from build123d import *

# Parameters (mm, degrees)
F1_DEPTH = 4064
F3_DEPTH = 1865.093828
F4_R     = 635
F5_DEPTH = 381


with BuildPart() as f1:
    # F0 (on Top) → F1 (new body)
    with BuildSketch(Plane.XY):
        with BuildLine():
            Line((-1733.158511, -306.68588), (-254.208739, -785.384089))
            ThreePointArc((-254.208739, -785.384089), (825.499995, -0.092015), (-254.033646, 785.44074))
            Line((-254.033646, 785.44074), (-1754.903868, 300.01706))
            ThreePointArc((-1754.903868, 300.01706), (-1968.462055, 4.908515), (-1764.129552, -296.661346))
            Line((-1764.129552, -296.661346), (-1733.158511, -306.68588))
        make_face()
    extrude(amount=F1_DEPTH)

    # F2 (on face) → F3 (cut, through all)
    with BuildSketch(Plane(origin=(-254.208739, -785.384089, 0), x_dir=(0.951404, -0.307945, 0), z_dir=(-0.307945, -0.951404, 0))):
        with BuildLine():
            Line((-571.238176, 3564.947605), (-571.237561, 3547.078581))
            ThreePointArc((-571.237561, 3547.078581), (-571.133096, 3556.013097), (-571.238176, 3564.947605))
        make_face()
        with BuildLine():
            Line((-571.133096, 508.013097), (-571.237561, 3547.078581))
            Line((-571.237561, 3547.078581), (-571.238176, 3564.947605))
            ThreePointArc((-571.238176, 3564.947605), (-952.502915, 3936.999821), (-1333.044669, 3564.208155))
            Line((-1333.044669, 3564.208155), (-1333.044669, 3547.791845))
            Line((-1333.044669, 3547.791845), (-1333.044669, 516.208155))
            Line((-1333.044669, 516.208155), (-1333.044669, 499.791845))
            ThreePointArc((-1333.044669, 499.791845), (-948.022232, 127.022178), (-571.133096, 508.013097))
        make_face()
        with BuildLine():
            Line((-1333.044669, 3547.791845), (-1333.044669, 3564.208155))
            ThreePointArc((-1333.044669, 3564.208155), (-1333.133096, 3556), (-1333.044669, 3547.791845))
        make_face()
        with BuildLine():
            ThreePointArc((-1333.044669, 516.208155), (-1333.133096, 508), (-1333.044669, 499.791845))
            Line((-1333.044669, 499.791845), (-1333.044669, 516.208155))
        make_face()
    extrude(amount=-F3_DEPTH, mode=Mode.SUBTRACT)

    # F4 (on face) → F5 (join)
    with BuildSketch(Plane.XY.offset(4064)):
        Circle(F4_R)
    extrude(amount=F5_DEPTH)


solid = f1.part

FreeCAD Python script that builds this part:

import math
import FreeCAD as App
import Part
import Sketcher

V = App.Vector
Q = App.Units.Quantity

doc = App.newDocument("Part")
body = doc.addObject("PartDesign::Body", "Body")

# Sketch on XY plane
sketch1 = doc.addObject("Sketcher::SketchObject", "Sketch")
body.addObject(sketch1)
sketch1.AttachmentSupport = (doc.XY_Plane, [""])
sketch1.MapMode = "FlatFace"
sketch1.addGeometry([
    Part.LineSegment(V(-1733, -307, 0), V(-254, -785, 0)),  # 0
    Part.ArcOfCircle(Part.Circle(V(0, 0, 0), V(0, 0, 1), 825), math.radians(-108), math.radians(108)),  # 1
    Part.LineSegment(V(-254, 785, 0), V(-1755, 300, 0)),  # 2
    Part.ArcOfCircle(Part.Circle(V(-1651, 0, 0), V(0, 0, 1), 317), math.radians(109), math.radians(249)),  # 3
    Part.LineSegment(V(-1764, -297, 0), V(-1733, -307, 0)),  # 4
], False)
sketch1.addConstraint([
    Sketcher.Constraint("Coincident", 0, 2, 1, 1),
    Sketcher.Constraint("Coincident", 1, 2, 2, 1),
    Sketcher.Constraint("Coincident", 2, 2, 3, 1),
    Sketcher.Constraint("Coincident", 3, 2, 4, 1),
    Sketcher.Constraint("Coincident", 4, 2, 0, 1),
    Sketcher.Constraint("Coincident", 1, 3, -1, 1),
    Sketcher.Constraint("PointOnObject", 3, 3, -1),
    Sketcher.Constraint("Parallel", 0, 4),
    Sketcher.Constraint("Radius", 1, Q("32.5 in")),
    Sketcher.Constraint("Radius", 3, Q("12.5 in")),
    Sketcher.Constraint("DistanceX", 3, 3, -1, 1, Q("65 in")),
    Sketcher.Constraint("Distance", 2, 1577.418008),
    Sketcher.Constraint("DistanceX", 0, 2, -1, 1, 254.208739),
    Sketcher.Constraint("DistanceX", 2, 2, -1, 1, 1754.903868),
    Sketcher.Constraint("DistanceX", 3, 2, -1, 1, 1764.129552),
    Sketcher.Constraint("DistanceX", 4, 2, -1, 1, 1733.158511),
])
pad1 = doc.addObject("PartDesign::Pad", "Pad")
body.addObject(pad1)
pad1.Profile = sketch1
pad1.Length = Q("160 in")

# Sketch on an angled plane
sketch2 = doc.addObject("Sketcher::SketchObject", "Sketch001")
body.addObject(sketch2)
sketch2.Placement = App.Placement(V(-254.208739, -785.384089, 0), App.Rotation(V(0.951404145, -0.307945047, 0), V(0, 0, 0.999999999), V(-0.307945047, -0.951404145, 0), "ZXY"))
sketch2.addGeometry([
    Part.ArcOfCircle(Part.Circle(V(-952.132317, 3555.999977, 0), V(0, 0, 1), 380.999222), math.radians(-1.341749), math.radians(1.345693)),  # 0
    Part.ArcOfCircle(Part.Circle(V(-952.133095, 3555.999994, 0), V(0, 0, 1), 381), math.radians(1.345688), math.radians(178.765541)),  # 1
    Part.ArcOfCircle(Part.Circle(V(-952.13166, 3555.999994, 0), V(0, 0, 1), 381.001435), math.radians(178.765545), math.radians(181.234455)),  # 2
    Part.LineSegment(V(-1333.044668, 3547.791839, 0), V(-1333.044668, 516.208154, 0)),  # 3
    Part.ArcOfCircle(Part.Circle(V(-952.13166, 507.999999, 0), V(0, 0, 1), 381.001435), math.radians(178.765545), math.radians(181.234455)),  # 4
    Part.ArcOfCircle(Part.Circle(V(-952.133095, 507.999999, 0), V(0, 0, 1), 381), math.radians(-178.765541), math.radians(0.00197)),  # 5
    Part.LineSegment(V(-571.133095, 508.013096, 0), V(-571.23756, 3547.078575, 0)),  # 6
], False)
sketch2.addConstraint([
    Sketcher.Constraint("Coincident", 0, 2, 1, 1),
    Sketcher.Constraint("Coincident", 1, 2, 2, 1),
    Sketcher.Constraint("Coincident", 2, 2, 3, 1),
    Sketcher.Constraint("Coincident", 3, 2, 4, 1),
    Sketcher.Constraint("Coincident", 4, 2, 5, 1),
    Sketcher.Constraint("Coincident", 5, 2, 6, 1),
    Sketcher.Constraint("Coincident", 6, 2, 0, 1),
    Sketcher.Constraint("Vertical", 3),
    Sketcher.Constraint("Radius", 1, Q("15 in")),
    Sketcher.Constraint("Radius", 5, Q("15 in")),
    Sketcher.Constraint("DistanceY", -1, 1, 4, 3, Q("20 in")),
    Sketcher.Constraint("DistanceY", -1, 1, 5, 3, Q("20 in")),
    Sketcher.Constraint("DistanceY", 4, 3, 1, 3, Q("119.9999998 in")),
    Sketcher.Constraint("Radius", 0, 380.999222),
    Sketcher.Constraint("Radius", 2, 381.001435),
    Sketcher.Constraint("Radius", 4, 381.001435),
    Sketcher.Constraint("DistanceY", -1, 1, 0, 2, 3564.947599),
    Sketcher.Constraint("DistanceX", 2, 3, 6, 2, 380.894099),
    Sketcher.Constraint("Distance", 6, 3039.06548),
    Sketcher.Constraint("DistanceY", 3, 2, 3, 1, 3031.583685),
    Sketcher.Constraint("DistanceX", 2, 3, -1, 1, 952.13166),
    Sketcher.Constraint("DistanceX", 4, 3, -1, 1, 952.13166),
    Sketcher.Constraint("DistanceX", 1, 2, -1, 1, 1333.044668),
    Sketcher.Constraint("DistanceY", -1, 1, 1, 2, 3564.208149),
    Sketcher.Constraint("DistanceX", 4, 2, -1, 1, 1333.044668),
    Sketcher.Constraint("DistanceX", 1, 3, 0, 3, 0.000778),
])
pocket1 = doc.addObject("PartDesign::Pocket", "Pocket")
body.addObject(pocket1)
pocket1.Profile = sketch2
pocket1.Type = "ThroughAll"

# Sketch on XY plane
sketch3 = doc.addObject("Sketcher::SketchObject", "Sketch002")
body.addObject(sketch3)
sketch3.AttachmentSupport = (doc.XY_Plane, [""])
sketch3.MapMode = "FlatFace"
sketch3.AttachmentOffset = App.Placement(V(0, 0, 160 * 25.4), App.Rotation())
sketch3.addGeometry(Part.Circle(V(0, 0, 0), V(0, 0, 1), 635), False)
sketch3.addConstraint([
    Sketcher.Constraint("Coincident", 0, 3, -1, 1),
    Sketcher.Constraint("Diameter", 0, Q("50 in")),
])
pad2 = doc.addObject("PartDesign::Pad", "Pad001")
body.addObject(pad2)
pad2.Profile = sketch3
pad2.Length = Q("15 in")

doc.recompute()
